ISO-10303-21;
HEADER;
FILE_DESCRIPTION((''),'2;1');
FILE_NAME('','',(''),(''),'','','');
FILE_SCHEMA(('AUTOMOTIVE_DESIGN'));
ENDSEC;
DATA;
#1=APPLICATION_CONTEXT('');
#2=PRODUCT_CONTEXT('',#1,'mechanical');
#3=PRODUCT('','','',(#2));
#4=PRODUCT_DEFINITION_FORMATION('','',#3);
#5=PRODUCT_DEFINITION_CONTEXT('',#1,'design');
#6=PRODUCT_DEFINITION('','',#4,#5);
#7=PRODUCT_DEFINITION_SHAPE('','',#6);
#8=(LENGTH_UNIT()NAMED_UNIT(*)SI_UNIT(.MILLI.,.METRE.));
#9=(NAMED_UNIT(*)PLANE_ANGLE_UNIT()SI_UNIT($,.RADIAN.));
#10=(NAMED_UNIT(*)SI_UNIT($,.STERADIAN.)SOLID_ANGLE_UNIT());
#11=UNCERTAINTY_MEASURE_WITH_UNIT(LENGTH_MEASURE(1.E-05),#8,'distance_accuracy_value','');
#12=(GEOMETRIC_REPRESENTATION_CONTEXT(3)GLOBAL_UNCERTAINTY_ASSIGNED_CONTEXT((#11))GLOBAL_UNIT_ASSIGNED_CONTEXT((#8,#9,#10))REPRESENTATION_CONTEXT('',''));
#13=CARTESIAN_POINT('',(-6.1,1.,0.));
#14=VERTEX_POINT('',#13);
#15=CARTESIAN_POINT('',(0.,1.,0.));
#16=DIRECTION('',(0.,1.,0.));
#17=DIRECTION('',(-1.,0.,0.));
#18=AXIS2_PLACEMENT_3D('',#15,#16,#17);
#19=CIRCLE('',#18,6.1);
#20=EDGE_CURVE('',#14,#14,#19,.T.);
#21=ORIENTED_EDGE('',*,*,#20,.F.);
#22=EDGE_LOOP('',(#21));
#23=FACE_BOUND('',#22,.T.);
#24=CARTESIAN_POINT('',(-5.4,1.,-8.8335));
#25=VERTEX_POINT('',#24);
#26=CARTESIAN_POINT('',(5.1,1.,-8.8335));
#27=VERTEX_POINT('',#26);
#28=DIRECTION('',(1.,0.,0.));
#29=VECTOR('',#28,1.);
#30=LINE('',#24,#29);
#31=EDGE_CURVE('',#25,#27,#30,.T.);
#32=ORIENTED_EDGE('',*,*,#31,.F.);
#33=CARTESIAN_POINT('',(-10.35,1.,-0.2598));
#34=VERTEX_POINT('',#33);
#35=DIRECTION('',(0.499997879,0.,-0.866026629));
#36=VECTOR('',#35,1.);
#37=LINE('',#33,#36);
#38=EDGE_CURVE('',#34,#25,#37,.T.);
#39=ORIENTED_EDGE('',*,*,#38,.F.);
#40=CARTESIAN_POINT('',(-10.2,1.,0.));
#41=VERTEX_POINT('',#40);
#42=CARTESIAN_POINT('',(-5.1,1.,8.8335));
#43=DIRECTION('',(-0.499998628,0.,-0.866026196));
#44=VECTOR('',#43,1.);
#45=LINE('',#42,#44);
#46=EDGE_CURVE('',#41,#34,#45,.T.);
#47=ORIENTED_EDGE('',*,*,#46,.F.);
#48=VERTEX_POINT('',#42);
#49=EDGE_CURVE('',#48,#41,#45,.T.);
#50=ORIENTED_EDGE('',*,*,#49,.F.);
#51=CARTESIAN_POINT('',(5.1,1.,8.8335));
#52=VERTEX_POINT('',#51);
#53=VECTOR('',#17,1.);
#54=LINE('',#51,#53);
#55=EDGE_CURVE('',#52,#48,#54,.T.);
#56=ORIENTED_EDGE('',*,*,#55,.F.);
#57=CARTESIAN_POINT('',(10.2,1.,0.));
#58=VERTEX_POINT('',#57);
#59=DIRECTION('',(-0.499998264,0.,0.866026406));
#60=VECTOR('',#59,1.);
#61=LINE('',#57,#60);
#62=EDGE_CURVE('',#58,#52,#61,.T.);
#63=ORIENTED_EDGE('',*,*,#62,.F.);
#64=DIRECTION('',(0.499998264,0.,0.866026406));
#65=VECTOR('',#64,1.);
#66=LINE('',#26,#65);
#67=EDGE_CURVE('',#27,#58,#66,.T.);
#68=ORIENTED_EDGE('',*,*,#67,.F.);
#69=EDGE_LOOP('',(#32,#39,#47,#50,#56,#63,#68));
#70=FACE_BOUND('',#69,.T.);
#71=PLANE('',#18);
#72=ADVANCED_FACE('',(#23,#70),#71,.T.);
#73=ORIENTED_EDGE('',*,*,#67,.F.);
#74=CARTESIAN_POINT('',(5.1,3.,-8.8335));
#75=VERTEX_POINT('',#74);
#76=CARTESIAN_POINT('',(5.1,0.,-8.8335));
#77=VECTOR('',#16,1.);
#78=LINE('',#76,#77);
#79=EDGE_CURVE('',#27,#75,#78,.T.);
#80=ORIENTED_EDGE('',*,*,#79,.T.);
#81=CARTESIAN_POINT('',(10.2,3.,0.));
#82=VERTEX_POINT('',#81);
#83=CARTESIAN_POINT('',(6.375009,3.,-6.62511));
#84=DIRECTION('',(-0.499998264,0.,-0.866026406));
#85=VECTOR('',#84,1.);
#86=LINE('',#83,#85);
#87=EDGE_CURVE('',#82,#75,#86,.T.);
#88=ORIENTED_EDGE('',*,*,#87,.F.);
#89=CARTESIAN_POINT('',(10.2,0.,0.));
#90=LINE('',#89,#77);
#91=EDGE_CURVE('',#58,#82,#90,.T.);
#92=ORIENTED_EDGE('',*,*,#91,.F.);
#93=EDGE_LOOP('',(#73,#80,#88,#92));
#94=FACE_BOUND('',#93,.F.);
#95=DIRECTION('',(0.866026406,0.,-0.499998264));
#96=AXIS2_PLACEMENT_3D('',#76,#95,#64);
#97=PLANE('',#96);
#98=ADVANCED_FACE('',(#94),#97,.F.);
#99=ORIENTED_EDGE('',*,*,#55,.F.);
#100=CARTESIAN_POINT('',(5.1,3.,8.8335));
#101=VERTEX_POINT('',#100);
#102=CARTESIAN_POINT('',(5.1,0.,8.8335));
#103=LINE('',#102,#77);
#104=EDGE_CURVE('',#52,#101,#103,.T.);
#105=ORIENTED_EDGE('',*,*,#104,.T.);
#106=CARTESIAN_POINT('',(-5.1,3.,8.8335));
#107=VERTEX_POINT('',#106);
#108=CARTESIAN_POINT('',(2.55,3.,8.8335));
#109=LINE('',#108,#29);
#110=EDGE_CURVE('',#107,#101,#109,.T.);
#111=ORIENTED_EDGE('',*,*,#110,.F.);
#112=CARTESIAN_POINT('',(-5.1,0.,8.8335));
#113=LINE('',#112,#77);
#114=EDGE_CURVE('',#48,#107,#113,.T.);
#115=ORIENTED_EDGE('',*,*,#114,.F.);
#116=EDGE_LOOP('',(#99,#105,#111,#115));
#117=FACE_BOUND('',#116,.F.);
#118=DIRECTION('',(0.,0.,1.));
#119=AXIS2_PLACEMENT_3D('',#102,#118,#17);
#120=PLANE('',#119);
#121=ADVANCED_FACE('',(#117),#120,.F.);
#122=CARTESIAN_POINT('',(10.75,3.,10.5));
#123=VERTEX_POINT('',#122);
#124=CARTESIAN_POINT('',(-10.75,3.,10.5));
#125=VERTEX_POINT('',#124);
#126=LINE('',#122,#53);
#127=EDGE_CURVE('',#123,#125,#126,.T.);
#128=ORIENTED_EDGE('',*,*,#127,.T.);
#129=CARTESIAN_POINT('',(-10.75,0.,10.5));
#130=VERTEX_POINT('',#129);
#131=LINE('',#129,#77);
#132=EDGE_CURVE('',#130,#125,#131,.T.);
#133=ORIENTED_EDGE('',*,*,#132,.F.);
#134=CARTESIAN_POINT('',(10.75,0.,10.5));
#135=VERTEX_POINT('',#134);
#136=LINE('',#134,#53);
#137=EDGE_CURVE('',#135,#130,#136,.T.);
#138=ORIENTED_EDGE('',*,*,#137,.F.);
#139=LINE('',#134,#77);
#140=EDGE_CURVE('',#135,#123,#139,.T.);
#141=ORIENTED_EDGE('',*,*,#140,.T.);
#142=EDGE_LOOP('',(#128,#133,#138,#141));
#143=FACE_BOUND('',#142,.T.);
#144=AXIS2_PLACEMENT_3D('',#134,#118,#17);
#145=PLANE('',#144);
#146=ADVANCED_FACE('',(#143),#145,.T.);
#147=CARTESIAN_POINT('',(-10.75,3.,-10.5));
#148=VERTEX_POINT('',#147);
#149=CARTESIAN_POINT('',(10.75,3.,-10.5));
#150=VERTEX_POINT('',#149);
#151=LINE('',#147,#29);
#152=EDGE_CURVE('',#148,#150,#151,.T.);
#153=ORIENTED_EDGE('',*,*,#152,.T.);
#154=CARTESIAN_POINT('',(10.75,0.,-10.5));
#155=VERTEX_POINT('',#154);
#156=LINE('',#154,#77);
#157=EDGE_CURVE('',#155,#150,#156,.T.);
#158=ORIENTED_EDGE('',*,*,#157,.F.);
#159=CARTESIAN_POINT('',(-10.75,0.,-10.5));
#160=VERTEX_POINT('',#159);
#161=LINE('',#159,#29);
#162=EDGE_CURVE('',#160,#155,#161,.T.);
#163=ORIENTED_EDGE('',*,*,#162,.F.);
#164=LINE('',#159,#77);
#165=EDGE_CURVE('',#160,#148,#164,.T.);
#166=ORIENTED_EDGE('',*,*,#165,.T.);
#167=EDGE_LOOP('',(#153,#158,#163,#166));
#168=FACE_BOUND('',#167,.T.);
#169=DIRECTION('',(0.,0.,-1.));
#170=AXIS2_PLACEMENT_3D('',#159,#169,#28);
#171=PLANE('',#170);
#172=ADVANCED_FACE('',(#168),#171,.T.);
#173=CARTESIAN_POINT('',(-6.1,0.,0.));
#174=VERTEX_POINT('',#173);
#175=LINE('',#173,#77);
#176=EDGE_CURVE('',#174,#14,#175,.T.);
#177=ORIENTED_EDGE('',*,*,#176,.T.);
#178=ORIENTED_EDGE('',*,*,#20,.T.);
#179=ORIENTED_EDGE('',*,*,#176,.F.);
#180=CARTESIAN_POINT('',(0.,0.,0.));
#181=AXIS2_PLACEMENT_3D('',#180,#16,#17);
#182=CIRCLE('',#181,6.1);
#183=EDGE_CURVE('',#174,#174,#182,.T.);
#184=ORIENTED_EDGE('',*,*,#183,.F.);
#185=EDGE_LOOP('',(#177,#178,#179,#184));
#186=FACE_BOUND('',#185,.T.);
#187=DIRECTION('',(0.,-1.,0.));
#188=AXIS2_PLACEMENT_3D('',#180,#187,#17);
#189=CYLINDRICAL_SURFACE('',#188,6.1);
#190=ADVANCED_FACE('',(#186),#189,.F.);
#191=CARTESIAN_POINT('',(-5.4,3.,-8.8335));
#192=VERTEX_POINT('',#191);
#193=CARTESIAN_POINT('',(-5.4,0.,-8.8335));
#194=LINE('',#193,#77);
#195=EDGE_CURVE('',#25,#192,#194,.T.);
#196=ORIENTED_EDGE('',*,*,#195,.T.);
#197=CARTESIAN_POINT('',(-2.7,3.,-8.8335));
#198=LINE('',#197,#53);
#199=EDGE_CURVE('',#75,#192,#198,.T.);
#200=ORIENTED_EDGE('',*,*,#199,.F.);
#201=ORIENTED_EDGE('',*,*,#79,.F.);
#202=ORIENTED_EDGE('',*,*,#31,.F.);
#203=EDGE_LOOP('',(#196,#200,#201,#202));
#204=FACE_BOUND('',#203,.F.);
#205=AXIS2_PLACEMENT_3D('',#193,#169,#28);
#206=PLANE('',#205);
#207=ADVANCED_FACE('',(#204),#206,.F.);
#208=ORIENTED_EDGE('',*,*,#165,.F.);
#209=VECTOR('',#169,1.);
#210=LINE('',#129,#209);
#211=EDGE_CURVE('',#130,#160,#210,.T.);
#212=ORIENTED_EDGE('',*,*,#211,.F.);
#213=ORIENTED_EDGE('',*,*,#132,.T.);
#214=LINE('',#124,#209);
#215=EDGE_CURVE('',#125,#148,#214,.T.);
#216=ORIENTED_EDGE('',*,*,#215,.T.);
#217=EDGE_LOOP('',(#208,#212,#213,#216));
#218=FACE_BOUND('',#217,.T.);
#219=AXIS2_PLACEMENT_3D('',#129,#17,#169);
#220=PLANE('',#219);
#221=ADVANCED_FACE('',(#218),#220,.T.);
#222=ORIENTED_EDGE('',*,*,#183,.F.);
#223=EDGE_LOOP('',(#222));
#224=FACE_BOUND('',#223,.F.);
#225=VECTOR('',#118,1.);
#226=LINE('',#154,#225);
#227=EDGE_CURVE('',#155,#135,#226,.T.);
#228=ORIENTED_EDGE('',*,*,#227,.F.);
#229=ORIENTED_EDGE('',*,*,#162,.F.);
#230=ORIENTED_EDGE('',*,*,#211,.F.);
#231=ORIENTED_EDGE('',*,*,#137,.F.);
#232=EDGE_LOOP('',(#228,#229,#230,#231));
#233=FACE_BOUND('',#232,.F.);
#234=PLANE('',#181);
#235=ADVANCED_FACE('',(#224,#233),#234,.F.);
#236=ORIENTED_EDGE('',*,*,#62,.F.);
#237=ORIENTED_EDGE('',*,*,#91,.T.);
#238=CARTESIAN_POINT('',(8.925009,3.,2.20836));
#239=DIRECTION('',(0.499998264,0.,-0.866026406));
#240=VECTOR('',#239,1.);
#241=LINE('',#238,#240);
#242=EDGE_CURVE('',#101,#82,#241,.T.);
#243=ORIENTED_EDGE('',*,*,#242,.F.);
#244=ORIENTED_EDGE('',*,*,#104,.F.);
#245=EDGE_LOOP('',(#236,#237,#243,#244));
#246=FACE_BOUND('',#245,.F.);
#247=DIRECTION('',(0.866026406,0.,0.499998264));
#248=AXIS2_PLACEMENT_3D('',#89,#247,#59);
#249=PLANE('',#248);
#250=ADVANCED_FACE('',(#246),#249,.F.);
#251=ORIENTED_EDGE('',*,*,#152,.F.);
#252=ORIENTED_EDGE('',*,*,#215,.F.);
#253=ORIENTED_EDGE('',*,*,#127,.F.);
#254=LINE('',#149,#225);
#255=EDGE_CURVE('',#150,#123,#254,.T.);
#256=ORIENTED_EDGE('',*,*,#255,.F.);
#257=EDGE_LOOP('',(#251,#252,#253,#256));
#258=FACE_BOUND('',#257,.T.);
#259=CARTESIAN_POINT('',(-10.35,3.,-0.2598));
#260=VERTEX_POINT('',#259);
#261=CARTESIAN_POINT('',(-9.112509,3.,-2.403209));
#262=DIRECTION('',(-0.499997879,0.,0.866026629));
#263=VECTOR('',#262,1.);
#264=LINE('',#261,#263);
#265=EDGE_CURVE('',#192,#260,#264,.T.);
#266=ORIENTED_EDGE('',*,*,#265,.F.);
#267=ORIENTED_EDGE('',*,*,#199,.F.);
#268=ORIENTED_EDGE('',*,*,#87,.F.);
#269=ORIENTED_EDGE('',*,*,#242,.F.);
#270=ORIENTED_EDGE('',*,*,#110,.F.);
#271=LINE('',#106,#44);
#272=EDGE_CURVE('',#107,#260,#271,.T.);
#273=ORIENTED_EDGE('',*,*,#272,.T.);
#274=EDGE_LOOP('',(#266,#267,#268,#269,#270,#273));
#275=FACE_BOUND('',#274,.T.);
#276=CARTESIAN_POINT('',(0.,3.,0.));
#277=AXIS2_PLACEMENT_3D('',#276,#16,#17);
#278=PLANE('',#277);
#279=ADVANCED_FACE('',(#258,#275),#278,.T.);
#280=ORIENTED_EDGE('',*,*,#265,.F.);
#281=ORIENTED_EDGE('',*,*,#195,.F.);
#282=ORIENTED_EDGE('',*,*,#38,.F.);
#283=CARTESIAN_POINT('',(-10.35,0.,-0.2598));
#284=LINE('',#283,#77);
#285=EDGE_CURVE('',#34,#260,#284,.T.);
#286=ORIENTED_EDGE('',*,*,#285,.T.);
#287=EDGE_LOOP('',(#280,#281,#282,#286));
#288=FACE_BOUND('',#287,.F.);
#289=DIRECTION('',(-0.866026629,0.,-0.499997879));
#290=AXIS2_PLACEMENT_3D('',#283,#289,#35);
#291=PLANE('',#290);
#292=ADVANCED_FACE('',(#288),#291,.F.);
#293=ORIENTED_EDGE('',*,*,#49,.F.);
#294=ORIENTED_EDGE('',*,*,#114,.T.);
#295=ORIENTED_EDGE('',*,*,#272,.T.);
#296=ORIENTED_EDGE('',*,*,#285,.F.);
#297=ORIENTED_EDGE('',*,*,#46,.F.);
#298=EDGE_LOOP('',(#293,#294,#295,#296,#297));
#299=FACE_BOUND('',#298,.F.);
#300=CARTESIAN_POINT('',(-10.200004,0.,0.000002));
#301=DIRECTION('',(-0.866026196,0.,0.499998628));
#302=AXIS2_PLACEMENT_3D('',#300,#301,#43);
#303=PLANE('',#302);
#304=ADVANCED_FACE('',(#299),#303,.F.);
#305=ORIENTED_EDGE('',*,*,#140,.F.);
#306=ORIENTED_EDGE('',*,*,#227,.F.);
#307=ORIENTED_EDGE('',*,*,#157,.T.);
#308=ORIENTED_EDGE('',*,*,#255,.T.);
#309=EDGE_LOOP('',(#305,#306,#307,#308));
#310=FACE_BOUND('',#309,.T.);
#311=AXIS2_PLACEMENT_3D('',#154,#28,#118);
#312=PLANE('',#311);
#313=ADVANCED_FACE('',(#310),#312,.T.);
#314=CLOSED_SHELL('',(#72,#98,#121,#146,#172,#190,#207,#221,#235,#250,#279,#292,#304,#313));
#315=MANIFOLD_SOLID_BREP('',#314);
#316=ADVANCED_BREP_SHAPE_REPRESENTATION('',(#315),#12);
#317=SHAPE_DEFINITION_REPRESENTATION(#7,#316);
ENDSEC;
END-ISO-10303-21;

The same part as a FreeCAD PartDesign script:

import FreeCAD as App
import Part
import Sketcher

V = App.Vector
Q = App.Units.Quantity


def add_polygon(sketch, points):
    """Adds a closed chain of lines whose ends are joined by coincident constraints."""
    first, n = sketch.GeometryCount, len(points)
    for a, b in zip(points, points[1:] + points[:1]):
        sketch.addGeometry(Part.LineSegment(App.Vector(*a, 0), App.Vector(*b, 0)), False)
    for i in range(n):
        sketch.addConstraint(Sketcher.Constraint("Coincident", first + i, 2, first + (i + 1) % n, 1))

doc = App.newDocument("Part")
params = doc.addObject("Spreadsheet::Sheet", "Params")
for row, (alias, value) in enumerate([
    ("sketch1_height", "21 mm"),
    ("sketch1_width", "21.5 mm"),
    ("pad1_length", "3 mm"),
    ("sketch2_width", "10.2 mm"),
    ("sketch2_length", "10.2 mm"),
    ("sketch2_width2", "10.5 mm"),
    ("pocket1_length", "12.2 mm"),
    ("sketch3_diameter", "12.2 mm"),
    ("sketch3_width", "10.2 mm"),
    ("sketch3_length", "10.2 mm"),
    ("sketch3_width2", "10.5 mm"),
    ("pad2_length", "1 mm"),
], start=1):
    params.set(f"A{row}", alias)
    params.set(f"B{row}", "=" + value)
    params.setAlias(f"B{row}", alias)

body = doc.addObject("PartDesign::Body", "Body")

sketch1 = body.newObject("Sketcher::SketchObject", "Sketch")
sketch1.AttachmentSupport = (doc.getObject("XZ_Plane"), [""])
sketch1.MapMode = "FlatFace"
add_polygon(sketch1, [(-10.75, 10.5), (10.75, 10.5), (10.75, -10.5), (-10.75, -10.5)])
sketch1.addConstraint([
    Sketcher.Constraint("Horizontal", 0),
    Sketcher.Constraint("Vertical", 1),
    Sketcher.Constraint("Horizontal", 2),
    Sketcher.Constraint("Vertical", 3),
    Sketcher.Constraint("Symmetric", 0, 2, 2, 2, -1, 1),
    Sketcher.Constraint("DistanceY", 1, 2, 1, 1, Q("21 mm")),
    Sketcher.Constraint("DistanceX", 0, 1, 0, 2, Q("21.5 mm")),
])
sketch1.setExpression("Constraints[9]", "Params.sketch1_height")
sketch1.setExpression("Constraints[10]", "Params.sketch1_width")
pad1 = body.newObject("PartDesign::Pad", "Pad")
pad1.Profile = sketch1
pad1.setExpression("Length", "Params.pad1_length")
pad1.Reversed = True

sketch2 = body.newObject("Sketcher::SketchObject", "Sketch001")
sketch2.AttachmentSupport = (doc.getObject("XZ_Plane"), [""])
sketch2.MapMode = "FlatFace"
add_polygon(sketch2, [(-10.35, -0.2598), (-10.200004, 0.000002), (-5.1, 8.8335), (5.1, 8.8335), (10.2, 0), (5.1, -8.8335), (-5.4, -8.8335)])
sketch2.addConstraint([
    Sketcher.Constraint("Horizontal", 2),
    Sketcher.Constraint("Horizontal", 5),
    Sketcher.Constraint("Symmetric", 0, 2, 3, 2, -1, 1),
    Sketcher.Constraint("Symmetric", 1, 2, 4, 2, -1, 1),
    Sketcher.Constraint("PointOnObject", 0, 2, -1),
    Sketcher.Constraint("Parallel", 0, 1),
    Sketcher.Constraint("Parallel", 3, 6),
    Sketcher.Constraint("Vertical", 2, 2, 4, 2),
    Sketcher.Constraint("DistanceX", 2, 1, 2, 2, Q("10.2 mm")),
    Sketcher.Constraint("Distance", 1, Q("10.2 mm")),
    Sketcher.Constraint("DistanceX", 0, 2, -1, 1, Q("10.2 mm")),
    Sketcher.Constraint("DistanceX", 5, 2, 5, 1, Q("10.5 mm")),
])
sketch2.setExpression("Constraints[15]", "Params.sketch2_width")
sketch2.setExpression("Constraints[16]", "Params.sketch2_length")
sketch2.setExpression("Constraints[18]", "Params.sketch2_width2")
pocket1 = body.newObject("PartDesign::Pocket", "Pocket")
pocket1.Profile = sketch2
pocket1.setExpression("Length", "Params.pocket1_length")

sketch3 = body.newObject("Sketcher::SketchObject", "Sketch002")
sketch3.AttachmentSupport = (doc.getObject("XZ_Plane"), [""])
sketch3.MapMode = "FlatFace"
add_polygon(sketch3, [(-10.35, -0.2598), (-10.200004, 0.000002), (-5.1, 8.8335), (5.1, 8.8335), (10.2, 0), (5.1, -8.8335), (-5.4, -8.8335)])
sketch3.addGeometry(Part.Circle(V(0, 0, 0), V(0, 0, 1), 6.1), False)
sketch3.addConstraint([
    Sketcher.Constraint("Horizontal", 2),
    Sketcher.Constraint("Horizontal", 5),
    Sketcher.Constraint("Coincident", 7, 3, -1, 1),
    Sketcher.Constraint("Symmetric", 0, 2, 3, 2, -1, 1),
    Sketcher.Constraint("Symmetric", 1, 2, 4, 2, -1, 1),
    Sketcher.Constraint("PointOnObject", 0, 2, -1),
    Sketcher.Constraint("Parallel", 0, 1),
    Sketcher.Constraint("Parallel", 3, 6),
    Sketcher.Constraint("Vertical", 2, 2, 4, 2),
    Sketcher.Constraint("Diameter", 7, Q("12.2 mm")),
    Sketcher.Constraint("DistanceX", 2, 1, 2, 2, Q("10.2 mm")),
    Sketcher.Constraint("Distance", 1, Q("10.2 mm")),
    Sketcher.Constraint("DistanceX", 0, 2, -1, 1, Q("10.2 mm")),
    Sketcher.Constraint("DistanceX", 5, 2, 5, 1, Q("10.5 mm")),
])
sketch3.setExpression("Constraints[16]", "Params.sketch3_diameter")
sketch3.setExpression("Constraints[17]", "Params.sketch3_width")
sketch3.setExpression("Constraints[18]", "Params.sketch3_length")
sketch3.setExpression("Constraints[20]", "Params.sketch3_width2")
pad2 = body.newObject("PartDesign::Pad", "Pad001")
pad2.Profile = sketch3
pad2.setExpression("Length", "Params.pad2_length")
pad2.Reversed = True

doc.recompute()
